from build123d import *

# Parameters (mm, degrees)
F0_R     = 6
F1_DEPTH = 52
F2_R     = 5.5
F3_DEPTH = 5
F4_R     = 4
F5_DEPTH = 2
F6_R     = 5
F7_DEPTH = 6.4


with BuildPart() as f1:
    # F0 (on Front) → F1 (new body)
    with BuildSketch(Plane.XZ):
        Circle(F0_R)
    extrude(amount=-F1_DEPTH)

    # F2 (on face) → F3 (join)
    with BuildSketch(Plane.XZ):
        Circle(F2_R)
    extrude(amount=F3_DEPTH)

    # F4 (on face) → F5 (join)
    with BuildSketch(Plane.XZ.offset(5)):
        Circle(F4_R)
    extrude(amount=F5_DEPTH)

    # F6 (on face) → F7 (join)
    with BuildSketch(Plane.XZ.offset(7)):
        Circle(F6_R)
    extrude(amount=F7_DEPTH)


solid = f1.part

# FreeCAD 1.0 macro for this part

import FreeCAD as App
import Part
import Sketcher

V = App.Vector

doc = App.newDocument("Part")
body = doc.addObject("PartDesign::Body", "Body")

# Sketch on XZ plane
sketch1 = body.newObject("Sketcher::SketchObject", "Sketch")
sketch1.AttachmentSupport = (doc.getObject("XZ_Plane"), [""])
sketch1.MapMode = "FlatFace"
sketch1.addGeometry(Part.Circle(V(0, 0, 0), V(0, 0, 1), 6), False)
sketch1.addConstraint(Sketcher.Constraint("Coincident", 0, 3, -1, 1))
sketch1.addConstraint(Sketcher.Constraint("Diameter", 0, 12.0))
pad1 = body.newObject("PartDesign::Pad", "Pad")
pad1.Profile = sketch1
pad1.Length = 52
pad1.Reversed = True

# Sketch on XZ plane
sketch2 = body.newObject("Sketcher::SketchObject", "Sketch001")
sketch2.AttachmentSupport = (doc.getObject("XZ_Plane"), [""])
sketch2.MapMode = "FlatFace"
sketch2.addGeometry(Part.Circle(V(0, 0, 0), V(0, 0, 1), 6), False)
sketch2.addConstraint(Sketcher.Constraint("Coincident", 0, 3, -1, 1))
sketch2.addConstraint(Sketcher.Constraint("Diameter", 0, 11.0))
pad2 = body.newObject("PartDesign::Pad", "Pad001")
pad2.Profile = sketch2
pad2.Length = 5

# Sketch on XZ plane
sketch3 = body.newObject("Sketcher::SketchObject", "Sketch002")
sketch3.AttachmentSupport = (doc.getObject("XZ_Plane"), [""])
sketch3.MapMode = "FlatFace"
sketch3.AttachmentOffset = App.Placement(V(0, 0, 5), App.Rotation())
sketch3.addGeometry(Part.Circle(V(0, 0, 0), V(0, 0, 1), 4), False)
sketch3.addConstraint(Sketcher.Constraint("Coincident", 0, 3, -1, 1))
sketch3.addConstraint(Sketcher.Constraint("Diameter", 0, 8.0))
pad3 = body.newObject("PartDesign::Pad", "Pad002")
pad3.Profile = sketch3
pad3.Length = 2

# Sketch on XZ plane
sketch4 = body.newObject("Sketcher::SketchObject", "Sketch003")
sketch4.AttachmentSupport = (doc.getObject("XZ_Plane"), [""])
sketch4.MapMode = "FlatFace"
sketch4.AttachmentOffset = App.Placement(V(0, 0, 7), App.Rotation())
sketch4.addGeometry(Part.Circle(V(0, 0, 0), V(0, 0, 1), 5), False)
sketch4.addConstraint(Sketcher.Constraint("Coincident", 0, 3, -1, 1))
sketch4.addConstraint(Sketcher.Constraint("Diameter", 0, 10.0))
pad4 = body.newObject("PartDesign::Pad", "Pad003")
pad4.Profile = sketch4
pad4.Length = 6.4

doc.recompute()
